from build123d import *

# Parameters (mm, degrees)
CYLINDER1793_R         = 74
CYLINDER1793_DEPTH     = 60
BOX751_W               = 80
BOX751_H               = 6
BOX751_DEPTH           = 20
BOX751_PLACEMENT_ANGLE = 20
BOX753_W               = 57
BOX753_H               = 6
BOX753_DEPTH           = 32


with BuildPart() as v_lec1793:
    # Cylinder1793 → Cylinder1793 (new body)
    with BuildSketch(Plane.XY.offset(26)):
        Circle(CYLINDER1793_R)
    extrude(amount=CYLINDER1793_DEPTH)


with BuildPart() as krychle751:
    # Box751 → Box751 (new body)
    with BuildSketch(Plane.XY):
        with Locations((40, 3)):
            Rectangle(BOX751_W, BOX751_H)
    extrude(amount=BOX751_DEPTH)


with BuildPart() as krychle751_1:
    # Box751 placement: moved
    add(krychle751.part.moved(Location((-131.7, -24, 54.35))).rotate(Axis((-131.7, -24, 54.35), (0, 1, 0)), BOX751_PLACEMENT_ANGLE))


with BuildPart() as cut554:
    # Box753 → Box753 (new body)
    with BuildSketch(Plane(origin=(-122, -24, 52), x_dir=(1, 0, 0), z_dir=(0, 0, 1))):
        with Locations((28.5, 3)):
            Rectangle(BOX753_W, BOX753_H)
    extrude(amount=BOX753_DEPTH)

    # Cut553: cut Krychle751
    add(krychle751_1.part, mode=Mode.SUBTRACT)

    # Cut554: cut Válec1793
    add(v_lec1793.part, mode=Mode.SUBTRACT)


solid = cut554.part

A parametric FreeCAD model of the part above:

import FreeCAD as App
import Part
import Sketcher
Q = App.Units.Quantity


def add_polygon(sketch, points):
    """Adds a closed chain of lines whose ends are joined by coincident constraints."""
    first, n = sketch.GeometryCount, len(points)
    for a, b in zip(points, points[1:] + points[:1]):
        sketch.addGeometry(Part.LineSegment(App.Vector(*a, 0), App.Vector(*b, 0)), False)
    for i in range(n):
        sketch.addConstraint(Sketcher.Constraint("Coincident", first + i, 2, first + (i + 1) % n, 1))

doc = App.newDocument("Part")
params = doc.addObject("Spreadsheet::Sheet", "Params")
for row, (alias, value) in enumerate([
    ("sketch1_diameter", "148 mm"),
    ("pad1_length", "60 mm"),
    ("sketch2_width", "80 mm"),
    ("sketch2_height", "6 mm"),
    ("pad2_length", "20 mm"),
    ("sketch3_width", "57 mm"),
    ("sketch3_height", "6 mm"),
    ("pad3_length", "32 mm"),
], start=1):
    params.set(f"A{row}", alias)
    params.set(f"B{row}", "=" + value)
    params.setAlias(f"B{row}", alias)

body = doc.addObject("PartDesign::Body", "Body")

# Sketch on XY plane
sketch1 = body.newObject("Sketcher::SketchObject", "Sketch")
sketch1.AttachmentSupport = (doc.getObject("XY_Plane"), [""])
sketch1.MapMode = "FlatFace"
sketch1.AttachmentOffset = App.Placement(App.Vector(0, 0, 26), App.Rotation())
sketch1.addGeometry(Part.Circle(App.Vector(0, 0, 0), App.Vector(0, 0, 1), 74), False)
sketch1.addConstraint(Sketcher.Constraint("Coincident", 0, 3, -1, 1))
sketch1.addConstraint(Sketcher.Constraint("Diameter", 0, Q("148 mm")))
sketch1.setExpression("Constraints[1]", "Params.sketch1_diameter")
pad1 = body.newObject("PartDesign::Pad", "Pad")
pad1.Profile = sketch1
pad1.setExpression("Length", "Params.pad1_length")
body2 = doc.addObject("PartDesign::Body", "Body001")

# Sketch on XY plane
sketch2 = body2.newObject("Sketcher::SketchObject", "Sketch001")
sketch2.AttachmentSupport = (doc.getObject("XY_Plane001"), [""])
sketch2.MapMode = "FlatFace"
add_polygon(sketch2, [(0, 6), (0, 0), (80, 0), (80, 6)])  # lines 0-3
sketch2.addConstraint(Sketcher.Constraint("Vertical", 0))
sketch2.addConstraint(Sketcher.Constraint("Horizontal", 1))
sketch2.addConstraint(Sketcher.Constraint("Vertical", 2))
sketch2.addConstraint(Sketcher.Constraint("Horizontal", 3))
sketch2.addConstraint(Sketcher.Constraint("Coincident", 0, 2, -1, 1))
sketch2.addConstraint(Sketcher.Constraint("DistanceX", 1, 1, 1, 2, Q("80 mm")))
sketch2.addConstraint(Sketcher.Constraint("DistanceY", 0, 2, 0, 1, Q("6 mm")))
sketch2.setExpression("Constraints[9]", "Params.sketch2_width")
sketch2.setExpression("Constraints[10]", "Params.sketch2_height")
pad2 = body2.newObject("PartDesign::Pad", "Pad001")
pad2.Profile = sketch2
pad2.setExpression("Length", "Params.pad2_length")
body3 = doc.addObject("PartDesign::Body", "Body002")
doc.recompute()

body2.Placement = App.Placement(App.Vector(-131.7, -24, 54.35), App.Rotation(App.Vector(0, 1, 0), 20))
boolean = body3.newObject("PartDesign::Boolean", "Boolean")
boolean.Type = "Fuse"
boolean.addObjects([body2])
body4 = doc.addObject("PartDesign::Body", "Body003")

# Sketch on XY plane
sketch3 = body4.newObject("Sketcher::SketchObject", "Sketch002")
sketch3.AttachmentSupport = (doc.getObject("XY_Plane003"), [""])
sketch3.MapMode = "FlatFace"
sketch3.AttachmentOffset = App.Placement(App.Vector(0, 0, 52), App.Rotation())
add_polygon(sketch3, [(-122, -18), (-122, -24), (-65, -24), (-65, -18)])  # lines 0-3
sketch3.addConstraint(Sketcher.Constraint("Vertical", 0))
sketch3.addConstraint(Sketcher.Constraint("Horizontal", 1))
sketch3.addConstraint(Sketcher.Constraint("Vertical", 2))
sketch3.addConstraint(Sketcher.Constraint("Horizontal", 3))
sketch3.addConstraint(Sketcher.Constraint("DistanceX", 1, 1, 1, 2, Q("57 mm")))
sketch3.addConstraint(Sketcher.Constraint("DistanceY", 0, 2, 0, 1, Q("6 mm")))
sketch3.addConstraint(Sketcher.Constraint("DistanceX", 0, 2, -1, 1, Q("122 mm")))
sketch3.addConstraint(Sketcher.Constraint("DistanceY", 0, 2, -1, 1, Q("24 mm")))
sketch3.setExpression("Constraints[8]", "Params.sketch3_width")
sketch3.setExpression("Constraints[9]", "Params.sketch3_height")
pad3 = body4.newObject("PartDesign::Pad", "Pad002")
pad3.Profile = sketch3
pad3.setExpression("Length", "Params.pad3_length")
doc.recompute()

boolean2 = body4.newObject("PartDesign::Boolean", "Boolean001")
boolean2.Type = "Cut"
boolean2.addObjects([body3])
doc.recompute()

boolean3 = body4.newObject("PartDesign::Boolean", "Boolean002")
boolean3.Type = "Cut"
boolean3.addObjects([body])

doc.recompute()
